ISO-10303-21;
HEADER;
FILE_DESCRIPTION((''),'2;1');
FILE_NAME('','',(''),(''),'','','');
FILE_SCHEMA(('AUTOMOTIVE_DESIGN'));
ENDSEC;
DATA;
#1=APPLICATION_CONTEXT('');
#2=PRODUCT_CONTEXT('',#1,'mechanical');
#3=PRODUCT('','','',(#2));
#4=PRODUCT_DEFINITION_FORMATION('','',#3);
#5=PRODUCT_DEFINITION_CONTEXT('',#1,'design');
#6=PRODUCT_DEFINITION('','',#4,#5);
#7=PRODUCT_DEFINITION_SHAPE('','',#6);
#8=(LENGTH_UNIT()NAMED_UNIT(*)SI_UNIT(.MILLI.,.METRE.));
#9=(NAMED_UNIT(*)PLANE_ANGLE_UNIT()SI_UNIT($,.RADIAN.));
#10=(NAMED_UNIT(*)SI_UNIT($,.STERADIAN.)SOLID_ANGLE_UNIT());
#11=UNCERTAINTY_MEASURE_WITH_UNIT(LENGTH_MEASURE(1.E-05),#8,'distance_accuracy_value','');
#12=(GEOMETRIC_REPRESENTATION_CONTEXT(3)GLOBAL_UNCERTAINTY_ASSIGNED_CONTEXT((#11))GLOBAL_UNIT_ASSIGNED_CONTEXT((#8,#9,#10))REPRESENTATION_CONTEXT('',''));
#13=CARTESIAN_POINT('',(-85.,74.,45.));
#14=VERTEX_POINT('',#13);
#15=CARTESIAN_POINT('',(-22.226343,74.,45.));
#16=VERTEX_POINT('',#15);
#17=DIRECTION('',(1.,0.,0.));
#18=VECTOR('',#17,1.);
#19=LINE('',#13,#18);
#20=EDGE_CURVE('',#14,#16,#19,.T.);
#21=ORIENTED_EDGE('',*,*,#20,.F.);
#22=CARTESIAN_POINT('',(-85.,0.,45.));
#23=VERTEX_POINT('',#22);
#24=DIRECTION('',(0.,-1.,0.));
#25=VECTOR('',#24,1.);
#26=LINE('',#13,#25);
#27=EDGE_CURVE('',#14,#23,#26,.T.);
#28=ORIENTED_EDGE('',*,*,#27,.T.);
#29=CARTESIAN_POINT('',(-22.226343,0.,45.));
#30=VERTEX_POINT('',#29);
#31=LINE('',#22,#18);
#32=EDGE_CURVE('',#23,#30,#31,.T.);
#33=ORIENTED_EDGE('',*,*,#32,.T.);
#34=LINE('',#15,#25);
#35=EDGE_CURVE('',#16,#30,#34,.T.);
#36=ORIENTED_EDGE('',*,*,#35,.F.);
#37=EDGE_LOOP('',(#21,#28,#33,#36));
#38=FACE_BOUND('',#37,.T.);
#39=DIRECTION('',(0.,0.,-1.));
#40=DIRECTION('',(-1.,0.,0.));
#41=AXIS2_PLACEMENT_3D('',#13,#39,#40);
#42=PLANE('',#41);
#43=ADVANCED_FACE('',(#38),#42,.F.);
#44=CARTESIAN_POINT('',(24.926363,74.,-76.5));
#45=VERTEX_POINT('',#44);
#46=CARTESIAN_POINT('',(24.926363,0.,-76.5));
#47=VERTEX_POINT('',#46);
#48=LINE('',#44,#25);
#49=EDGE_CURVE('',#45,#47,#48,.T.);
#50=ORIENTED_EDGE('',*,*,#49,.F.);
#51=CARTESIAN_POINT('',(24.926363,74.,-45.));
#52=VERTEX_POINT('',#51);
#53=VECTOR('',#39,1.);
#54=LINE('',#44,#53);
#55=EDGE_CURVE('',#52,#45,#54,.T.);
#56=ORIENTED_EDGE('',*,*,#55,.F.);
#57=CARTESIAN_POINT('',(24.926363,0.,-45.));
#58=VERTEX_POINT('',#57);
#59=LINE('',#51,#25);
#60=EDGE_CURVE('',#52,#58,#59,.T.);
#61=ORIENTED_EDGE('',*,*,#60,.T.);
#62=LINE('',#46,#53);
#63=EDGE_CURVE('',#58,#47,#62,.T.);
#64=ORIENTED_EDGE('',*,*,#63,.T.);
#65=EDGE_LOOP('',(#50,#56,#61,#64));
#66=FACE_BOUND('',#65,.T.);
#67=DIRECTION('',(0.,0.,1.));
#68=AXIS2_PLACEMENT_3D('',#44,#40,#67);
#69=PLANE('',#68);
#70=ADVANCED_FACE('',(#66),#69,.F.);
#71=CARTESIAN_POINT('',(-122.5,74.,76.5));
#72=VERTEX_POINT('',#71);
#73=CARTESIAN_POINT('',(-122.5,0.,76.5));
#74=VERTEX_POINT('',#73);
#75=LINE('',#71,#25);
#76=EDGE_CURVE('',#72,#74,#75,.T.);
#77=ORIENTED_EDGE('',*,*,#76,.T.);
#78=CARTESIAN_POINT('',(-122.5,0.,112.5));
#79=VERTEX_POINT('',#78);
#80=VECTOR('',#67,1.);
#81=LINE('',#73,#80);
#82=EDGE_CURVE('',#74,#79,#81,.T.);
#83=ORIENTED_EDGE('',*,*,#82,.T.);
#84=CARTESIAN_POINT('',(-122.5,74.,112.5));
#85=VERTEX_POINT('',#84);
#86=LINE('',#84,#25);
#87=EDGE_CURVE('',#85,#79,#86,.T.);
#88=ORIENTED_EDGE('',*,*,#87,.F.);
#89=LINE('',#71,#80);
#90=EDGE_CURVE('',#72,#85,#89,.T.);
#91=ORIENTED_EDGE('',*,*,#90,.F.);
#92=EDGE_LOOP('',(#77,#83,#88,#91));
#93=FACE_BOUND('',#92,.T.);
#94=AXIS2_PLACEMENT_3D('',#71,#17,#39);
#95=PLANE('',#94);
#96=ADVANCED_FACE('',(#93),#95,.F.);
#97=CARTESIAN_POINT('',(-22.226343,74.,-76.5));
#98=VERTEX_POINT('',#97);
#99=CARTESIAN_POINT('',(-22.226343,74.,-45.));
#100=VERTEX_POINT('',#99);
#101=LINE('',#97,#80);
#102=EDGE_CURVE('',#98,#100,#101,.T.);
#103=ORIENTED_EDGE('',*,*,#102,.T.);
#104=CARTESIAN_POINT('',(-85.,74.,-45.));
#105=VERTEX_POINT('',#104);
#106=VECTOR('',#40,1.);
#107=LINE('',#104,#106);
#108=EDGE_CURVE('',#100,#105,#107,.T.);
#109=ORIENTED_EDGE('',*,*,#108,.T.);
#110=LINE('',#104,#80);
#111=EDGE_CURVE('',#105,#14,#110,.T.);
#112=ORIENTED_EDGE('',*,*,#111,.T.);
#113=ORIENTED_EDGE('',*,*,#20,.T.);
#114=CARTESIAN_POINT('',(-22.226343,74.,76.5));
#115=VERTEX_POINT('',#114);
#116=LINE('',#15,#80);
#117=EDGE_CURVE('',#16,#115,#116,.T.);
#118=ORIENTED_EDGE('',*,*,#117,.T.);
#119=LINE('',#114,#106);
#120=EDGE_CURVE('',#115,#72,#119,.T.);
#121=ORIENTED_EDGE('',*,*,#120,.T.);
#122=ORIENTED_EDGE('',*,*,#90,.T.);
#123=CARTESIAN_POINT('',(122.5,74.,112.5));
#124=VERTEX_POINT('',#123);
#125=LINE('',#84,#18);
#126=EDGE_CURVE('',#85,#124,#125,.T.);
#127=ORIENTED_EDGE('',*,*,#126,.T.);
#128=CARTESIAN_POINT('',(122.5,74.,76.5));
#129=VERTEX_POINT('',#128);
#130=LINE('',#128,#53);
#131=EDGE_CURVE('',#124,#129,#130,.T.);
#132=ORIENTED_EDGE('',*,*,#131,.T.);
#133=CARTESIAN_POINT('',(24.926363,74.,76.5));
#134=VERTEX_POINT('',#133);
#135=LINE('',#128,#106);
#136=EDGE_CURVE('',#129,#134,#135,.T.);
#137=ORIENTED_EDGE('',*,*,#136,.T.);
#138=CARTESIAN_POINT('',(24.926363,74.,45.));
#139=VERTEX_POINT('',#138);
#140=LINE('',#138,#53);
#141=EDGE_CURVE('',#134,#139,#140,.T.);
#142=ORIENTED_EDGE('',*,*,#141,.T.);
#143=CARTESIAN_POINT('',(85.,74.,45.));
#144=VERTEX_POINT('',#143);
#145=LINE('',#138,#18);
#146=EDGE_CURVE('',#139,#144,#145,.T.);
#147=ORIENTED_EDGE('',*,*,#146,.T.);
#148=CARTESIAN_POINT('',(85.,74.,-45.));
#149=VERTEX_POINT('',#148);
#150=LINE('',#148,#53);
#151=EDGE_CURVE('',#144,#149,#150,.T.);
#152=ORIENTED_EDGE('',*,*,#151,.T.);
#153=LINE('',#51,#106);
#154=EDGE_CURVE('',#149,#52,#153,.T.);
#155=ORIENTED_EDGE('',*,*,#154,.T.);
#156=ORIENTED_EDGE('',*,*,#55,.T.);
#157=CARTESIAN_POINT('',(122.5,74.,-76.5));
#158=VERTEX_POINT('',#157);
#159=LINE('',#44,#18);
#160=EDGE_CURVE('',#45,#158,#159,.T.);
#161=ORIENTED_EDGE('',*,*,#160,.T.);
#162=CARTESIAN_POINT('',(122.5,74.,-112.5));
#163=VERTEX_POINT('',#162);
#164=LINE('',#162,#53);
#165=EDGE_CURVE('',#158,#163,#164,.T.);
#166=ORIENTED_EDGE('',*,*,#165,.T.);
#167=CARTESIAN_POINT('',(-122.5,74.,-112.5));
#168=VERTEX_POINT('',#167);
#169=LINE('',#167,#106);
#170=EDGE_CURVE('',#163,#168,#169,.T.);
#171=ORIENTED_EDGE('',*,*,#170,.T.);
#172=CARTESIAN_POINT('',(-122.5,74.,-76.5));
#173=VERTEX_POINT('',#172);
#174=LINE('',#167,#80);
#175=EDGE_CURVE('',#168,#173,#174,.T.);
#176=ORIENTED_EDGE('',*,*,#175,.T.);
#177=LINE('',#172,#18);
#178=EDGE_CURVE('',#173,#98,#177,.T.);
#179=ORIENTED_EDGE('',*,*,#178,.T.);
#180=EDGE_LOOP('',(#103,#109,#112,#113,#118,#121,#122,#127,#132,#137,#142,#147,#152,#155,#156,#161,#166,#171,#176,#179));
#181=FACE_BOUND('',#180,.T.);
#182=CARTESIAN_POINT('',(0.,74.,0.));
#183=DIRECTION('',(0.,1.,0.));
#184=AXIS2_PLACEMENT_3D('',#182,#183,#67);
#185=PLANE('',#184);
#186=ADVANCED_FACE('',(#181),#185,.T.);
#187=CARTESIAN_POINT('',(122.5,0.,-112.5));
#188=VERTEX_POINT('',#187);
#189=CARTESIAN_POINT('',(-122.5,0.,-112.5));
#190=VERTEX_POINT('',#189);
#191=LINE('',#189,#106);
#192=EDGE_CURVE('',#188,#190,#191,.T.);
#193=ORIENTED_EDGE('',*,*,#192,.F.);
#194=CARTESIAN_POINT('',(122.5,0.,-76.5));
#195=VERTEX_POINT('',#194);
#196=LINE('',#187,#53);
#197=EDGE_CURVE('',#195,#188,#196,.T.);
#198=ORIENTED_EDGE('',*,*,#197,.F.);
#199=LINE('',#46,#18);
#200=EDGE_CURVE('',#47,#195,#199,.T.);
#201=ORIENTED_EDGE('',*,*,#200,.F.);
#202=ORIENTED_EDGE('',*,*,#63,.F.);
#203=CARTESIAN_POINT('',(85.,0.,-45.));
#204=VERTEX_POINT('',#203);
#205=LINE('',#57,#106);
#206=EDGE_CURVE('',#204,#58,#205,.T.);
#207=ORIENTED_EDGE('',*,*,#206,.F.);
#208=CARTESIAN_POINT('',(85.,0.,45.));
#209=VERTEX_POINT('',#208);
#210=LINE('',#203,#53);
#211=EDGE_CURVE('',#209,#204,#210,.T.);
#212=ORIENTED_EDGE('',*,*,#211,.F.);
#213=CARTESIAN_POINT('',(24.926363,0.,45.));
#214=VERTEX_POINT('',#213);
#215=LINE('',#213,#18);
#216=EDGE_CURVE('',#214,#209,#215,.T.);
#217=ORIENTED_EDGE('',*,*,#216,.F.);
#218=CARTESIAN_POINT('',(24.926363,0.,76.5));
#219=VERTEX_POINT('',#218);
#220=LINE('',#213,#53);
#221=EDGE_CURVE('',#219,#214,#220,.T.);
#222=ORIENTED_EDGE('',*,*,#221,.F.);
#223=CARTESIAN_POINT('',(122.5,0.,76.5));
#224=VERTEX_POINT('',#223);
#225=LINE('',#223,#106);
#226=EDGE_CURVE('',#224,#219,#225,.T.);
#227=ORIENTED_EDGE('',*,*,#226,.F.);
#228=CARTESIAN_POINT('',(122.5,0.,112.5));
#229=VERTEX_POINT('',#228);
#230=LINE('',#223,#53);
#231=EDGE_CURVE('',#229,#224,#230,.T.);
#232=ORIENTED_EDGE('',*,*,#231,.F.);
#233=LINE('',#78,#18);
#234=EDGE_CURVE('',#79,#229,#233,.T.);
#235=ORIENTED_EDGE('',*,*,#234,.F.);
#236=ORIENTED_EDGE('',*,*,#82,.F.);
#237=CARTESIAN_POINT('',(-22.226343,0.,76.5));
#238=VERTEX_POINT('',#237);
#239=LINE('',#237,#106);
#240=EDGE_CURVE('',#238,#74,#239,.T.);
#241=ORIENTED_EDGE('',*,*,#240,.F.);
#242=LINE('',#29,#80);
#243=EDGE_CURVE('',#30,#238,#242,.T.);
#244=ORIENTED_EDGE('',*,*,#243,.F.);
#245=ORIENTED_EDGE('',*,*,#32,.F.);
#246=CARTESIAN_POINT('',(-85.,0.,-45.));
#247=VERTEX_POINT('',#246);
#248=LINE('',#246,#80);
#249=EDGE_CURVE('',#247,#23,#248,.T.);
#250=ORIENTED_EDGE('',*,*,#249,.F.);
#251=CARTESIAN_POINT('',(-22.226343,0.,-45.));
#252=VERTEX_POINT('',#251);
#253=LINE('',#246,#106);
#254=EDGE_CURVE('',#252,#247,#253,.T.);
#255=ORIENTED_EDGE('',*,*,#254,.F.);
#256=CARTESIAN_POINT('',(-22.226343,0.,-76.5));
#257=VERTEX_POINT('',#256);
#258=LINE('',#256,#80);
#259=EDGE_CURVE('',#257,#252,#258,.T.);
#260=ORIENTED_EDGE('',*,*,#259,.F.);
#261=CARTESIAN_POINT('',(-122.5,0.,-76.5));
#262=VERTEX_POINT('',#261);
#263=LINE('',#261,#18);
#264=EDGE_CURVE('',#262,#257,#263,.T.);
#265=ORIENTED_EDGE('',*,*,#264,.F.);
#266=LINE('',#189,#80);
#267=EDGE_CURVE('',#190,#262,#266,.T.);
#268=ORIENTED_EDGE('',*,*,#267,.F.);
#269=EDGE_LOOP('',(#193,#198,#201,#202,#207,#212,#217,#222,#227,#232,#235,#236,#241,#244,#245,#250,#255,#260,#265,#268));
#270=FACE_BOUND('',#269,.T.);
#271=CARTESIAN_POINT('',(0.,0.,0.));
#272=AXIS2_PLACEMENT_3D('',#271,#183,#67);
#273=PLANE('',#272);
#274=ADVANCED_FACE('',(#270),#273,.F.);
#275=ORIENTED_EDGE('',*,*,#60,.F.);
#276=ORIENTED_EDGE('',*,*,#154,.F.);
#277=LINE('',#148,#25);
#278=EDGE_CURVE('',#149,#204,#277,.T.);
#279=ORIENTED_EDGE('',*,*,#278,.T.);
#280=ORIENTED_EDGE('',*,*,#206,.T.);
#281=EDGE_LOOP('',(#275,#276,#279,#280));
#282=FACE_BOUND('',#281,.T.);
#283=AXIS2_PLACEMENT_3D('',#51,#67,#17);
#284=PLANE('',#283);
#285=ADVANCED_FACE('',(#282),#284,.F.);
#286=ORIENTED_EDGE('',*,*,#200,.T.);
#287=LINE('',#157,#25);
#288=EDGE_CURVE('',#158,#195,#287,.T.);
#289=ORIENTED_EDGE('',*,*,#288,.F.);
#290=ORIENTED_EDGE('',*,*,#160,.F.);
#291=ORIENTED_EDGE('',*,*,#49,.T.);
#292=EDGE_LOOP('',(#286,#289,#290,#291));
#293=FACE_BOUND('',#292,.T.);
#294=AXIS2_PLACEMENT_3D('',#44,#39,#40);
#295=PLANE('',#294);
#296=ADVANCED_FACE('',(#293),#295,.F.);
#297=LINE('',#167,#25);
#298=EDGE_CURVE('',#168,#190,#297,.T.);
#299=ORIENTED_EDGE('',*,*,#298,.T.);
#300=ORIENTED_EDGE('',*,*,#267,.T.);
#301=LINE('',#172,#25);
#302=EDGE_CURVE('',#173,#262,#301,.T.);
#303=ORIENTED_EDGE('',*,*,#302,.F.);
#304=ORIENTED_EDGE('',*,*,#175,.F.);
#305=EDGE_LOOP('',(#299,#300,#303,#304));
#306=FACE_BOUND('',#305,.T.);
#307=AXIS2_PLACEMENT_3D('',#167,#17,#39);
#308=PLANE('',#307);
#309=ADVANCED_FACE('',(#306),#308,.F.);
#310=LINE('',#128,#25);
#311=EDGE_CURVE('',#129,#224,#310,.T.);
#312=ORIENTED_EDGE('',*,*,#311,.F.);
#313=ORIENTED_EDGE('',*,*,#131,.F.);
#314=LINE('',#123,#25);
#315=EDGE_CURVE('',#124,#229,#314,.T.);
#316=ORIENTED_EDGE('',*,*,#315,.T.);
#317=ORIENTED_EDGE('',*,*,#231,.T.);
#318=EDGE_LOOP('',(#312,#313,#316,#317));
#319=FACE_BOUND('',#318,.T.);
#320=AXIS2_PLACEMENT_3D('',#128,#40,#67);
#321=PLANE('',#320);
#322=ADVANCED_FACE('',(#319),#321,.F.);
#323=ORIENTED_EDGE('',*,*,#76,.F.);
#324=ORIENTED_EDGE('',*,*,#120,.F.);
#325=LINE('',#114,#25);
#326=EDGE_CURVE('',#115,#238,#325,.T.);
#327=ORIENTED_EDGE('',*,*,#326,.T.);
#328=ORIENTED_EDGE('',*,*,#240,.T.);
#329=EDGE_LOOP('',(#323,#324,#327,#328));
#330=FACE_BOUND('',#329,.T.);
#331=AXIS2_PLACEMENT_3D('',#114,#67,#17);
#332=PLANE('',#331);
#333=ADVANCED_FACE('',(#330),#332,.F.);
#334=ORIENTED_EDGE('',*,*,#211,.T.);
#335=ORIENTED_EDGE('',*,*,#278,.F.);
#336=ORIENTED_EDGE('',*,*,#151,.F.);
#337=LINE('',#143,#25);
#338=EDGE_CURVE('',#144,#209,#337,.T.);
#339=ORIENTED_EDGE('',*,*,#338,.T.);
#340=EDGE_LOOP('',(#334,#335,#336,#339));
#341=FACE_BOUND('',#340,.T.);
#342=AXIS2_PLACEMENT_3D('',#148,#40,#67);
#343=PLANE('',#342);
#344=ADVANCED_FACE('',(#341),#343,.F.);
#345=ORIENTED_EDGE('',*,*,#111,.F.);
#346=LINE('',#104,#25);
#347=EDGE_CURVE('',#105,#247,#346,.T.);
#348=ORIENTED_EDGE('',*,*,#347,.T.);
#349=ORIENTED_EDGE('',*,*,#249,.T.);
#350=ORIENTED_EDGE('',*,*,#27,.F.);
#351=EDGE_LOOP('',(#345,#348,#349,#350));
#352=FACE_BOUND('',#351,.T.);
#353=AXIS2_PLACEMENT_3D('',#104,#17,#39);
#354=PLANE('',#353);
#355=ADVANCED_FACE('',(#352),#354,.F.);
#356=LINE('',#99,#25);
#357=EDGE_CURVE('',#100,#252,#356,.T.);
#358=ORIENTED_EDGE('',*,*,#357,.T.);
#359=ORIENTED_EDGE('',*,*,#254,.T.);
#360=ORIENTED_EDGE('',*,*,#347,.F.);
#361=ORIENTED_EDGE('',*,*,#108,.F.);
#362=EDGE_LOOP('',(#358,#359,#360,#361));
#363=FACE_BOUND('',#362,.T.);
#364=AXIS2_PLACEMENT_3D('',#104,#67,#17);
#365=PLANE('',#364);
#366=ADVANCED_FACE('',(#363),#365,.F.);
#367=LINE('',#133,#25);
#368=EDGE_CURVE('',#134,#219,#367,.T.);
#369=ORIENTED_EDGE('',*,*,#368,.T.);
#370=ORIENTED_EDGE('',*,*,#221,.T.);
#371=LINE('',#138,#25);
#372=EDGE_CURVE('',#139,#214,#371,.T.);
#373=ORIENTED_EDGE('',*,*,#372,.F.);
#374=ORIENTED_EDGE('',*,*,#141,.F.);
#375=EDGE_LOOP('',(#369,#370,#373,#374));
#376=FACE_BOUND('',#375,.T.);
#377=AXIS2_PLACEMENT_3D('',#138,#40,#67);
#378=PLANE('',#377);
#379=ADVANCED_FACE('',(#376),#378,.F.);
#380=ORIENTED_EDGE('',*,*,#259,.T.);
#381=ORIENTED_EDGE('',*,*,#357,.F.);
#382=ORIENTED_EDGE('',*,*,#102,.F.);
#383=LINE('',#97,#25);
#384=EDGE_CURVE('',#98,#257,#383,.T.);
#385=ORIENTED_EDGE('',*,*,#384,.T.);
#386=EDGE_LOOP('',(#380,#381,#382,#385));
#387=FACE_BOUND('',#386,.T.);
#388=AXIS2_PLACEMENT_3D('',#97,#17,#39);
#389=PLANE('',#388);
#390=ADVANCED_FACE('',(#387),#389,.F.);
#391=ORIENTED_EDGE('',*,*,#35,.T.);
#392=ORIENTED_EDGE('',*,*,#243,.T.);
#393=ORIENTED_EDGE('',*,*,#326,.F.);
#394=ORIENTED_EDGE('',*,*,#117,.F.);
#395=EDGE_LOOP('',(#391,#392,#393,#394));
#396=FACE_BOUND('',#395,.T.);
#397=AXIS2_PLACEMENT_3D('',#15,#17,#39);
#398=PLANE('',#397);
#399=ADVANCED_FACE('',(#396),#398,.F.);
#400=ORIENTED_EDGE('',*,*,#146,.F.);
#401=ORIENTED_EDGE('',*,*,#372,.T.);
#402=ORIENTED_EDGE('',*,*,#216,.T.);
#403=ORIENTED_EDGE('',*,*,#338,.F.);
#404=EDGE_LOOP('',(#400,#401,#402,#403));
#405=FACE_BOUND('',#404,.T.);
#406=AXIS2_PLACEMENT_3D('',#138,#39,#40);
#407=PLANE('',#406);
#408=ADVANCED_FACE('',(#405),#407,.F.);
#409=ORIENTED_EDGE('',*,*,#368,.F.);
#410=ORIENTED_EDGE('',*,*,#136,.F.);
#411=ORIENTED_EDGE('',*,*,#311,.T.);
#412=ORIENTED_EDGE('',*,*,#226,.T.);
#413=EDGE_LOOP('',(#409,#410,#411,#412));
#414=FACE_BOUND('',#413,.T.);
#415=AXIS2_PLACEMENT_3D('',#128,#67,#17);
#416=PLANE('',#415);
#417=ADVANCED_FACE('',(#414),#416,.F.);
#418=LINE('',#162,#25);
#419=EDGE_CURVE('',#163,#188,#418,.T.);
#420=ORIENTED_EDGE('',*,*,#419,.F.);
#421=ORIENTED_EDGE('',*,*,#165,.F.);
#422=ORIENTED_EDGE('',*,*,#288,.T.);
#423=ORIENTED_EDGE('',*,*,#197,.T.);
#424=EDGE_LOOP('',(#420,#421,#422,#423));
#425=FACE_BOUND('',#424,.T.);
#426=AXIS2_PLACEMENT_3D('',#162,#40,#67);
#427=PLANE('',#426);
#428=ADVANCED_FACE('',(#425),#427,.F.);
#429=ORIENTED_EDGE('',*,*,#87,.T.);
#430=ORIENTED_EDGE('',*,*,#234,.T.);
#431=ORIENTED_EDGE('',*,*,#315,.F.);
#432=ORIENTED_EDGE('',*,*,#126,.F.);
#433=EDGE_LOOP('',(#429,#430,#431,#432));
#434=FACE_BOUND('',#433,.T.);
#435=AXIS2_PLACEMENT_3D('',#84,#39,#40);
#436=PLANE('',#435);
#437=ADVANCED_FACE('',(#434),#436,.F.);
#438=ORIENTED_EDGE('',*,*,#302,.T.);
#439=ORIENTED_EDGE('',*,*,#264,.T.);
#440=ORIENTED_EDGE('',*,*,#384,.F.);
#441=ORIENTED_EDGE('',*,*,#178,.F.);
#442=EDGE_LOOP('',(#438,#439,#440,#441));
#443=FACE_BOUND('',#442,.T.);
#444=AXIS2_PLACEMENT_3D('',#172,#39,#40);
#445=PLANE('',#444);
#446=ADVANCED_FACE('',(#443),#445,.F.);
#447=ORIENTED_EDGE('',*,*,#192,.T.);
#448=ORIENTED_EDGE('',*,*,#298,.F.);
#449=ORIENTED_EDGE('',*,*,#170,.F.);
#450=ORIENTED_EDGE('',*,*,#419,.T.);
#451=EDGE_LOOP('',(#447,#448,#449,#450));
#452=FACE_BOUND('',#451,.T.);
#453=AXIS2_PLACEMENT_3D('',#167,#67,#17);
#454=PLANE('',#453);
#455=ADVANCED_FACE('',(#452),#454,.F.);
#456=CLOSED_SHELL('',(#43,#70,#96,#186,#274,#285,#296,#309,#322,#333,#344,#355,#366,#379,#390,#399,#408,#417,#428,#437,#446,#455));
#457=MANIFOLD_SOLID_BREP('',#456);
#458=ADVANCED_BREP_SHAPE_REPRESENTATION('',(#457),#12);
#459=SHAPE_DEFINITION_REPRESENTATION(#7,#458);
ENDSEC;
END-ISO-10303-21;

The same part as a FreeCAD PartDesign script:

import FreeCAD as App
import Part
import Sketcher
Q = App.Units.Quantity

doc = App.newDocument("Part")
params = doc.addObject("Spreadsheet::Sheet", "Params")
for row, (alias, value) in enumerate([
    ("sketch1_width", "245 mm"),
    ("sketch1_height", "90 mm"),
    ("sketch1_height2", "36 mm"),
    ("sketch1_height3", "31.5 mm"),
    ("pad1_length", "74 mm"),
], start=1):
    params.set(f"A{row}", alias)
    params.set(f"B{row}", "=" + value)
    params.setAlias(f"B{row}", alias)

body = doc.addObject("PartDesign::Body", "Body")

# Sketch on XZ plane
sketch1 = body.newObject("Sketcher::SketchObject", "Sketch")
sketch1.AttachmentSupport = (doc.getObject("XZ_Plane"), [""])
sketch1.MapMode = "FlatFace"
sketch1.addGeometry([
    Part.LineSegment(App.Vector(-122, -76, 0), App.Vector(-22, -76, 0)),  # 0
    Part.LineSegment(App.Vector(-22, -76, 0), App.Vector(-22, -45, 0)),  # 1
    Part.LineSegment(App.Vector(-22, -45, 0), App.Vector(-85, -45, 0)),  # 2
    Part.LineSegment(App.Vector(-85, -45, 0), App.Vector(-85, 45, 0)),  # 3
    Part.LineSegment(App.Vector(-85, 45, 0), App.Vector(-22, 45, 0)),  # 4
    Part.LineSegment(App.Vector(-22, 45, 0), App.Vector(-22, 76, 0)),  # 5
    Part.LineSegment(App.Vector(-22, 76, 0), App.Vector(-122, 76, 0)),  # 6
    Part.LineSegment(App.Vector(-122, 76, 0), App.Vector(-122, 112, 0)),  # 7
    Part.LineSegment(App.Vector(-122, 112, 0), App.Vector(122, 112, 0)),  # 8
    Part.LineSegment(App.Vector(122, 112, 0), App.Vector(122, 76, 0)),  # 9
    Part.LineSegment(App.Vector(122, 76, 0), App.Vector(25, 76, 0)),  # 10
    Part.LineSegment(App.Vector(25, 76, 0), App.Vector(25, 45, 0)),  # 11
    Part.LineSegment(App.Vector(25, 45, 0), App.Vector(85, 45, 0)),  # 12
    Part.LineSegment(App.Vector(85, 45, 0), App.Vector(85, -45, 0)),  # 13
    Part.LineSegment(App.Vector(85, -45, 0), App.Vector(25, -45, 0)),  # 14
    Part.LineSegment(App.Vector(25, -45, 0), App.Vector(25, -76, 0)),  # 15
    Part.LineSegment(App.Vector(25, -76, 0), App.Vector(122, -76, 0)),  # 16
    Part.LineSegment(App.Vector(122, -76, 0), App.Vector(122, -112, 0)),  # 17
    Part.LineSegment(App.Vector(122, -112, 0), App.Vector(-122, -112, 0)),  # 18
    Part.LineSegment(App.Vector(-122, -112, 0), App.Vector(-122, -76, 0)),  # 19
], False)
sketch1.addConstraint([
    Sketcher.Constraint("Coincident", 0, 2, 1, 1),
    Sketcher.Constraint("Coincident", 1, 2, 2, 1),
    Sketcher.Constraint("Coincident", 2, 2, 3, 1),
    Sketcher.Constraint("Coincident", 3, 2, 4, 1),
    Sketcher.Constraint("Coincident", 4, 2, 5, 1),
    Sketcher.Constraint("Coincident", 5, 2, 6, 1),
    Sketcher.Constraint("Coincident", 6, 2, 7, 1),
    Sketcher.Constraint("Coincident", 7, 2, 8, 1),
    Sketcher.Constraint("Coincident", 8, 2, 9, 1),
    Sketcher.Constraint("Coincident", 9, 2, 10, 1),
    Sketcher.Constraint("Coincident", 10, 2, 11, 1),
    Sketcher.Constraint("Coincident", 11, 2, 12, 1),
    Sketcher.Constraint("Coincident", 12, 2, 13, 1),
    Sketcher.Constraint("Coincident", 13, 2, 14, 1),
    Sketcher.Constraint("Coincident", 14, 2, 15, 1),
    Sketcher.Constraint("Coincident", 15, 2, 16, 1),
    Sketcher.Constraint("Coincident", 16, 2, 17, 1),
    Sketcher.Constraint("Coincident", 17, 2, 18, 1),
    Sketcher.Constraint("Coincident", 18, 2, 19, 1),
    Sketcher.Constraint("Coincident", 19, 2, 0, 1),
    Sketcher.Constraint("Horizontal", 0),
    Sketcher.Constraint("Vertical", 1),
    Sketcher.Constraint("Horizontal", 2),
    Sketcher.Constraint("Vertical", 3),
    Sketcher.Constraint("Horizontal", 4),
    Sketcher.Constraint("Vertical", 5),
    Sketcher.Constraint("Horizontal", 6),
    Sketcher.Constraint("Vertical", 7),
    Sketcher.Constraint("Horizontal", 8),
    Sketcher.Constraint("Vertical", 9),
    Sketcher.Constraint("Horizontal", 10),
    Sketcher.Constraint("Vertical", 11),
    Sketcher.Constraint("Horizontal", 12),
    Sketcher.Constraint("Vertical", 13),
    Sketcher.Constraint("Horizontal", 14),
    Sketcher.Constraint("Vertical", 15),
    Sketcher.Constraint("Horizontal", 16),
    Sketcher.Constraint("Vertical", 17),
    Sketcher.Constraint("Horizontal", 18),
    Sketcher.Constraint("Vertical", 19),
    Sketcher.Constraint("Symmetric", 2, 2, 12, 2, -1, 1),
    Sketcher.Constraint("Symmetric", 6, 2, 16, 2, -1, 1),
    Sketcher.Constraint("Symmetric", 8, 2, 18, 2, -1, 1),
    Sketcher.Constraint("Symmetric", 6, 2, 9, 2, -2),
    Sketcher.Constraint("Symmetric", 1, 2, 4, 2, -1),
    Sketcher.Constraint("Symmetric", 11, 2, 14, 2, -1),
    Sketcher.Constraint("Horizontal", 0, 2, 15, 2),
    Sketcher.Constraint("DistanceX", 8, 1, 8, 2, Q("245 mm")),
    Sketcher.Constraint("DistanceY", 3, 1, 3, 2, Q("90 mm")),
    Sketcher.Constraint("DistanceY", 7, 1, 7, 2, Q("36 mm")),
    Sketcher.Constraint("DistanceY", 1, 1, 1, 2, Q("31.5 mm")),
    Sketcher.Constraint("DistanceX", 2, 2, -1, 1, Q("85 mm")),
    Sketcher.Constraint("DistanceX", 0, 1, 0, 2, Q("100.273657 mm")),
    Sketcher.Constraint("DistanceX", 10, 2, 10, 1, Q("97.573637 mm")),
])
sketch1.setExpression("Constraints[47]", "Params.sketch1_width")
sketch1.setExpression("Constraints[48]", "Params.sketch1_height")
sketch1.setExpression("Constraints[49]", "Params.sketch1_height2")
sketch1.setExpression("Constraints[50]", "Params.sketch1_height3")
pad1 = body.newObject("PartDesign::Pad", "Pad")
pad1.Profile = sketch1
pad1.setExpression("Length", "Params.pad1_length")
pad1.Reversed = True

doc.recompute()
